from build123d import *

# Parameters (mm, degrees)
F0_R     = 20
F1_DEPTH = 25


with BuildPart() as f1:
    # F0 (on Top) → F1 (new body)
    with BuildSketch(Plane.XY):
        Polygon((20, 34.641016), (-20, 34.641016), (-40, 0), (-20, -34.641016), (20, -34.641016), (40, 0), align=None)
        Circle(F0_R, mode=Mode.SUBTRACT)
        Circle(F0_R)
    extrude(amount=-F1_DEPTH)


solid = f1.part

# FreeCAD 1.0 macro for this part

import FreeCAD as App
import Part
import Sketcher
from FreeCAD import Vector
Q = App.Units.Quantity


def add_polygon(sketch, points):
    """Adds a closed chain of lines whose ends are joined by coincident constraints."""
    first, n = sketch.GeometryCount, len(points)
    for a, b in zip(points, points[1:] + points[:1]):
        sketch.addGeometry(Part.LineSegment(App.Vector(*a, 0), App.Vector(*b, 0)), False)
    for i in range(n):
        sketch.addConstraint(Sketcher.Constraint("Coincident", first + i, 2, first + (i + 1) % n, 1))

doc = App.newDocument("Part")
params = doc.addObject("Spreadsheet::Sheet", "Params")
for row, (alias, value) in enumerate([
    ("sketch1_width", "40 mm"),
    ("sketch1_length", "40 mm"),
    ("pad1_length", "25 mm"),
], start=1):
    params.set(f"A{row}", alias)
    params.set(f"B{row}", "=" + value)
    params.setAlias(f"B{row}", alias)

body = doc.addObject("PartDesign::Body", "Body")

# Sketch on XY plane
sketch1 = doc.addObject("Sketcher::SketchObject", "Sketch")
body.addObject(sketch1)
sketch1.AttachmentSupport = (doc.XY_Plane, [""])
sketch1.MapMode = "FlatFace"
add_polygon(sketch1, [(20, 35), (-20, 35), (-40, 0), (-20, -35), (20, -35), (40, 0)])  # lines 0-5
sketch1.addConstraint(Sketcher.Constraint("Horizontal", 0))
sketch1.addConstraint(Sketcher.Constraint("Horizontal", 3))
sketch1.addConstraint(Sketcher.Constraint("Symmetric", 0, 2, 3, 2, -1, 1))
sketch1.addConstraint(Sketcher.Constraint("Symmetric", 1, 2, 4, 2, -1, 1))
sketch1.addConstraint(Sketcher.Constraint("PointOnObject", 1, 2, -1))
sketch1.addConstraint(Sketcher.Constraint("Parallel", 2, 5))
sketch1.addConstraint(Sketcher.Constraint("Vertical", 0, 2, 2, 2))
sketch1.addConstraint(Sketcher.Constraint("DistanceX", 0, 2, 0, 1, Q("40 mm")))
sketch1.addConstraint(Sketcher.Constraint("Angle", 1, Q("-120 deg")))
sketch1.addConstraint(Sketcher.Constraint("Distance", 1, Q("40 mm")))
sketch1.setExpression("Constraints[13]", "Params.sketch1_width")
sketch1.setExpression("Constraints[15]", "Params.sketch1_length")
pad1 = doc.addObject("PartDesign::Pad", "Pad")
body.addObject(pad1)
pad1.Profile = sketch1
pad1.setExpression("Length", "Params.pad1_length")
pad1.Reversed = True

doc.recompute()
